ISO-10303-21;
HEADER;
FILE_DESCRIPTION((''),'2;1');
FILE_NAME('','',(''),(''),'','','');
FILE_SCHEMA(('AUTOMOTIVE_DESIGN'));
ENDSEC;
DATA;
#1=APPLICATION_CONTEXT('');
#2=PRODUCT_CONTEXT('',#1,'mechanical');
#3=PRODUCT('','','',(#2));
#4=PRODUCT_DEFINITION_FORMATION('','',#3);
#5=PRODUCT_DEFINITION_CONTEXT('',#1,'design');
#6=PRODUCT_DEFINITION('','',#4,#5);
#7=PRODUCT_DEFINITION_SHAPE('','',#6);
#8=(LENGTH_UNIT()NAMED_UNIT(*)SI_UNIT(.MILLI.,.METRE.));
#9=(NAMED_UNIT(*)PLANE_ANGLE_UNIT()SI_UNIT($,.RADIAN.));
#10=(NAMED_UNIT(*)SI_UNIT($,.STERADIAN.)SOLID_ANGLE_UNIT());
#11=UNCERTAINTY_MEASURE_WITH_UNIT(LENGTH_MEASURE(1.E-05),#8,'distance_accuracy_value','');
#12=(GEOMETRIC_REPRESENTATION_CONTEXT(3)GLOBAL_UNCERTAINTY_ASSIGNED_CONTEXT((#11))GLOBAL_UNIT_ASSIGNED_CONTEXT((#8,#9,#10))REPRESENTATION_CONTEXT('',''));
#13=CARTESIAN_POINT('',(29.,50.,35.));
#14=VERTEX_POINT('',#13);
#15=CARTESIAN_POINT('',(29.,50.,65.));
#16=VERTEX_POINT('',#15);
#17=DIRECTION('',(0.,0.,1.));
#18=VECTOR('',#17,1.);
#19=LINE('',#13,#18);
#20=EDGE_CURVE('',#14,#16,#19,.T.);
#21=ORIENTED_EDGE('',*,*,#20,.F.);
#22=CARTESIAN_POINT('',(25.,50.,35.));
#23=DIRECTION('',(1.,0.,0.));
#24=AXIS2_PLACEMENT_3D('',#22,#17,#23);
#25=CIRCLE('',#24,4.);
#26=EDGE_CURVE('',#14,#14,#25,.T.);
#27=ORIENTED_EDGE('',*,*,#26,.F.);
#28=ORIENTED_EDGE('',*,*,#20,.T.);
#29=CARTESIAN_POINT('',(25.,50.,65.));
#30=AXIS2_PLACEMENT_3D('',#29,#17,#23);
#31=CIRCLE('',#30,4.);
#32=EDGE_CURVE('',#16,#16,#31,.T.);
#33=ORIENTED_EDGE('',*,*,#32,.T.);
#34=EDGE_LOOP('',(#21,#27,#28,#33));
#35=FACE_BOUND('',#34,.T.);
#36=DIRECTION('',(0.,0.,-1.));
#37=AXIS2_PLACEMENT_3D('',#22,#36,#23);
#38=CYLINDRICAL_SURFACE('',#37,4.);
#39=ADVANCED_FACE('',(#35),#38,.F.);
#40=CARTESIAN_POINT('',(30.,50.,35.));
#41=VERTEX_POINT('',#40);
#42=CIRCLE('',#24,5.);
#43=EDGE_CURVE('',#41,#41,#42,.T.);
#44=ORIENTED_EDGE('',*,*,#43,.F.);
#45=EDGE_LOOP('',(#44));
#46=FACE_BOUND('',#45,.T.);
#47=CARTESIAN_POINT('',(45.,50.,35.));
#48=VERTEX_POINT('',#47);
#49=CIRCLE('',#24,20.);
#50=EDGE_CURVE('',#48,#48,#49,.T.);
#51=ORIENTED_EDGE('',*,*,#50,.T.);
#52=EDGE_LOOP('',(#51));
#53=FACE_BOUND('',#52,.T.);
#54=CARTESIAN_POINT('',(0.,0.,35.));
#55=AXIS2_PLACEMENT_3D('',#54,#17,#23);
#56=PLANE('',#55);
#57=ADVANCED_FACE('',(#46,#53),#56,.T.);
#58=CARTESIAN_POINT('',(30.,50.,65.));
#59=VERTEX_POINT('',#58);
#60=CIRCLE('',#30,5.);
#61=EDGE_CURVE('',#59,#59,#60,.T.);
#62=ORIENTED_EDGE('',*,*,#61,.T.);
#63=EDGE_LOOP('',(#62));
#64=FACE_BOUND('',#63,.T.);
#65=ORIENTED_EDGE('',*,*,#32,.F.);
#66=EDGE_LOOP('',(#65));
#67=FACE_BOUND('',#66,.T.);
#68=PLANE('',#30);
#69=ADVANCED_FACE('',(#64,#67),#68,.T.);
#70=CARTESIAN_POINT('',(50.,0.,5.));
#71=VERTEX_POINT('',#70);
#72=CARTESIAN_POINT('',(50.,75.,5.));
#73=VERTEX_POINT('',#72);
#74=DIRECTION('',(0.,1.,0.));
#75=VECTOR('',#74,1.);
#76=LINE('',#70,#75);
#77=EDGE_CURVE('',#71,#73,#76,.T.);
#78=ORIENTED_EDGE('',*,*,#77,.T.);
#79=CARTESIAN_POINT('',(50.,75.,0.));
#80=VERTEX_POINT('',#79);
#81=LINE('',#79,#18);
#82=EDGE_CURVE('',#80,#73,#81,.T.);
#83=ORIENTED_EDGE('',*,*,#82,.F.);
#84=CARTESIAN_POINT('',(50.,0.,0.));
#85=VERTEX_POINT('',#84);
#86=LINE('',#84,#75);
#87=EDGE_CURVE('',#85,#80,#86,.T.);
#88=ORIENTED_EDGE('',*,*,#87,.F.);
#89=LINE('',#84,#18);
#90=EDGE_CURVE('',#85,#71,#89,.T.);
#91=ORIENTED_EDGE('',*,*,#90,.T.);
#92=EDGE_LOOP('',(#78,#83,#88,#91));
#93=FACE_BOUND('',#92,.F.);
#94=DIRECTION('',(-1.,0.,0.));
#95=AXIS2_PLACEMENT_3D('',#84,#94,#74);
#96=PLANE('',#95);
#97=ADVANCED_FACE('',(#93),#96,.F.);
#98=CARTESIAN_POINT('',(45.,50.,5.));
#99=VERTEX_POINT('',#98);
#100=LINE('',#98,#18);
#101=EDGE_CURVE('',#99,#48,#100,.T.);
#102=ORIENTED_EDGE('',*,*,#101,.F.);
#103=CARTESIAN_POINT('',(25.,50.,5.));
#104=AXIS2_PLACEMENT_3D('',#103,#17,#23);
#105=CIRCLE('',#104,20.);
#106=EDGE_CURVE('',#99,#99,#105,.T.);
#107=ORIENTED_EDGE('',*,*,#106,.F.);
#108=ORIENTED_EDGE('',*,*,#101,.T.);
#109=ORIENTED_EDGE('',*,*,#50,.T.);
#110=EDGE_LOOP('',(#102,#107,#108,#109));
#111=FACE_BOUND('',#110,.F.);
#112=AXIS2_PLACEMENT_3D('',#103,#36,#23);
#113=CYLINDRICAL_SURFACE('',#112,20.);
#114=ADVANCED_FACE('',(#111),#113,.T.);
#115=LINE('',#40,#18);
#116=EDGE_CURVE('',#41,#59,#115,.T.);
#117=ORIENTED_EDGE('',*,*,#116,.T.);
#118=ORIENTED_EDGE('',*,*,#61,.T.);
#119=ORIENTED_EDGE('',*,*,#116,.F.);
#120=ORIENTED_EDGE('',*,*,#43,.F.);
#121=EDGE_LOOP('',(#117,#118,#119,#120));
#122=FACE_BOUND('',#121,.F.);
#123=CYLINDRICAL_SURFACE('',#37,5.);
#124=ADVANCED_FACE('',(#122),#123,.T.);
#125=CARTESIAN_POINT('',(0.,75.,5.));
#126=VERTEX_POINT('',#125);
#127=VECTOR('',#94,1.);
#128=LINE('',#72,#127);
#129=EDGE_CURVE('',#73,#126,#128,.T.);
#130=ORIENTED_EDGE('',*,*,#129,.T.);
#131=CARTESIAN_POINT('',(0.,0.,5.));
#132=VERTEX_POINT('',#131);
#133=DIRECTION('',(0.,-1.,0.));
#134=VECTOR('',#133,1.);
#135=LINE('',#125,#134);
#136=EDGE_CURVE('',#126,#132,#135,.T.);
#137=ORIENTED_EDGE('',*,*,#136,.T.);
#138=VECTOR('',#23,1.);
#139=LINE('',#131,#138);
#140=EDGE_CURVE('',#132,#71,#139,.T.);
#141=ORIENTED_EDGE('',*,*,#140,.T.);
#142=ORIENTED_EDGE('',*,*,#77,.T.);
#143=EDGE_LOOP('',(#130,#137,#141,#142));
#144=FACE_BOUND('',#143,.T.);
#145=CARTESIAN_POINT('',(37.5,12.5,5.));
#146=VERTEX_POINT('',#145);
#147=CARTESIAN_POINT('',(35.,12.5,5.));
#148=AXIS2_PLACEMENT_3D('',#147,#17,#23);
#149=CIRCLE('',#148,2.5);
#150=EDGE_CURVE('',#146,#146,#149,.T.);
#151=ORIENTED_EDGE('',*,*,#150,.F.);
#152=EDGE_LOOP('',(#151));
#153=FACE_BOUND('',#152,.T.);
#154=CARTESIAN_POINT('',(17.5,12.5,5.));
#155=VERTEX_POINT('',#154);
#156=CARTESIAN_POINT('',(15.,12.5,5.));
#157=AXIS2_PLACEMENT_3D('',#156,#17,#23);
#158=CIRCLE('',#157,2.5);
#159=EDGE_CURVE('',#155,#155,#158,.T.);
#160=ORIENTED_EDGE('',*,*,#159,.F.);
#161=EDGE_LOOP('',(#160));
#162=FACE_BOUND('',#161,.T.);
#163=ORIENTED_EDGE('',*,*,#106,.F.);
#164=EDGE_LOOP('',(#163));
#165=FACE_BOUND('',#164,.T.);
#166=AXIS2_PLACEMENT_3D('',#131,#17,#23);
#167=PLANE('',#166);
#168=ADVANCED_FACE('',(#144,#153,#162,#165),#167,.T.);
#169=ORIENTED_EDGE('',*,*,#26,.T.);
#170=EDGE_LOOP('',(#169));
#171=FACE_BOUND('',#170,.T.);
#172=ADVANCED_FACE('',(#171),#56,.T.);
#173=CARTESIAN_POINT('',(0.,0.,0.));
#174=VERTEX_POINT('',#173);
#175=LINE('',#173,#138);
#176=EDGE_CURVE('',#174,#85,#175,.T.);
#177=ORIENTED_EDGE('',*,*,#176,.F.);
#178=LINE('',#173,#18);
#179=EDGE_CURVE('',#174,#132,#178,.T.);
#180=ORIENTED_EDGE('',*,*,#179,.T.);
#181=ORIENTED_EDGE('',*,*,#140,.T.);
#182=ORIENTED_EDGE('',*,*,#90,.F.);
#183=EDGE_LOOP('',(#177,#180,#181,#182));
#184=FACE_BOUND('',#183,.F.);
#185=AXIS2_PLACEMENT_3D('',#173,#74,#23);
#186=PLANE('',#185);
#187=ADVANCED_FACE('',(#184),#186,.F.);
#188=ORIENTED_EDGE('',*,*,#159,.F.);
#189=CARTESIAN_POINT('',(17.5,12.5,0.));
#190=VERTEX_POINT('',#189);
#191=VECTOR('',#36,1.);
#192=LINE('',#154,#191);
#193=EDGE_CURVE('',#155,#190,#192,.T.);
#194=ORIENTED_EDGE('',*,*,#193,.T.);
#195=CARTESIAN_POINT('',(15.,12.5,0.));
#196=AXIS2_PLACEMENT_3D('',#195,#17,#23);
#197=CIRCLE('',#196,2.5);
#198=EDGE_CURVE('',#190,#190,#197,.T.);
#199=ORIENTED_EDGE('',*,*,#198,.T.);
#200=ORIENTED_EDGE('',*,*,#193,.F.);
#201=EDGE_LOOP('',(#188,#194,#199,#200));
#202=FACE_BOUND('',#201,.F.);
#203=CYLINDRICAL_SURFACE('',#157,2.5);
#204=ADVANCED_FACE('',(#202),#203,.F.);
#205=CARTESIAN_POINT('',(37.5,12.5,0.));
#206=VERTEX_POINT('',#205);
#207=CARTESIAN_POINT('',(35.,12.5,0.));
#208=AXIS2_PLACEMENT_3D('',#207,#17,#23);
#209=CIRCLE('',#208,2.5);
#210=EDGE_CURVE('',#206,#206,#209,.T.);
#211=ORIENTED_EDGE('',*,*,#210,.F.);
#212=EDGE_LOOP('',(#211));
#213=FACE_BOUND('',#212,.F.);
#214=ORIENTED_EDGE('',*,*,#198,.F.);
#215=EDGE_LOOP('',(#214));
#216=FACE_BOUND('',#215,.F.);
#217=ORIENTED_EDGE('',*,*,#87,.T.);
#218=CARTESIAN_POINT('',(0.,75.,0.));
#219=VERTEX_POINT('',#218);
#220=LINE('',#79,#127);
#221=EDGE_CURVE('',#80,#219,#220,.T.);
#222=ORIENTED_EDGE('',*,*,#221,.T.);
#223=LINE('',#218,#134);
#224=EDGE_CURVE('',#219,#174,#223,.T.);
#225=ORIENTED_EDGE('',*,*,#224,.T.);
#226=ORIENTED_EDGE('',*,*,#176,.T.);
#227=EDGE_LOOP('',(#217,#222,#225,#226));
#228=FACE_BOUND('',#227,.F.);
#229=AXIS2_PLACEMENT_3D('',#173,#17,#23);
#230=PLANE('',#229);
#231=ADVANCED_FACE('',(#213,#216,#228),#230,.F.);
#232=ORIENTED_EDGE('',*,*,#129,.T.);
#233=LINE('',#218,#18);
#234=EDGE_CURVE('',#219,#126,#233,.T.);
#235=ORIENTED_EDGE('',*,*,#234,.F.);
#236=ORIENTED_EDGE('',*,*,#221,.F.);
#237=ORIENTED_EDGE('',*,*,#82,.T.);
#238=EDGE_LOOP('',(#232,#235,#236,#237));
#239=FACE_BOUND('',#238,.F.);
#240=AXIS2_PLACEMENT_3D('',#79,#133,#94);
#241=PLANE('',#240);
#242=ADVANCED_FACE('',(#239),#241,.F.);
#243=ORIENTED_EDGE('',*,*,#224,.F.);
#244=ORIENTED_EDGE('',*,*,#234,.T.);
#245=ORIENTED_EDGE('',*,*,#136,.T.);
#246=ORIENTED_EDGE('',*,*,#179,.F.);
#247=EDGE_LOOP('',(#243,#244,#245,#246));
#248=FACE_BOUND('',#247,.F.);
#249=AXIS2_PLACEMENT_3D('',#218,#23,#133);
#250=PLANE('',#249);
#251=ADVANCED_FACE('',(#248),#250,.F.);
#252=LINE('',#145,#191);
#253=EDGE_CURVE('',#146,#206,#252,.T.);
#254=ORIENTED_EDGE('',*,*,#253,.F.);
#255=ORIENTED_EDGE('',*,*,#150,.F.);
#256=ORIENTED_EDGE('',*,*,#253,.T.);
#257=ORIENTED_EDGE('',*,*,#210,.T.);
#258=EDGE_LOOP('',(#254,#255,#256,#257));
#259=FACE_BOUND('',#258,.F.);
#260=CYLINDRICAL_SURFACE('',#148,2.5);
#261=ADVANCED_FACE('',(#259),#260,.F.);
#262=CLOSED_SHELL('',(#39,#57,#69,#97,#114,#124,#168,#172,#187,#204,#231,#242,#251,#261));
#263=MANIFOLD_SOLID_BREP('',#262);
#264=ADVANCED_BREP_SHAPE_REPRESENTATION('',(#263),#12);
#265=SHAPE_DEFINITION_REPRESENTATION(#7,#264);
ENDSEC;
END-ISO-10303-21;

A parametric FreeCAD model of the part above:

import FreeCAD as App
import Part
import Sketcher
Q = App.Units.Quantity


def add_polygon(sketch, points):
    """Adds a closed chain of lines whose ends are joined by coincident constraints."""
    first, n = sketch.GeometryCount, len(points)
    for a, b in zip(points, points[1:] + points[:1]):
        sketch.addGeometry(Part.LineSegment(App.Vector(*a, 0), App.Vector(*b, 0)), False)
    for i in range(n):
        sketch.addConstraint(Sketcher.Constraint("Coincident", first + i, 2, first + (i + 1) % n, 1))

doc = App.newDocument("Part")
params = doc.addObject("Spreadsheet::Sheet", "Params")
for row, (alias, value) in enumerate([
    ("sketch1_width", "50 mm"),
    ("sketch1_height", "75 mm"),
    ("pad1_length", "5 mm"),
    ("sketch2_diameter", "40 mm"),
    ("pad2_length", "30 mm"),
    ("sketch3_diameter", "10 mm"),
    ("sketch3_diameter2", "8 mm"),
    ("pad3_length", "30 mm"),
    ("sketch4_diameter", "5 mm"),
    ("pocket1_length", "10 mm"),
], start=1):
    params.set(f"A{row}", alias)
    params.set(f"B{row}", "=" + value)
    params.setAlias(f"B{row}", alias)

body = doc.addObject("PartDesign::Body", "Body")

sketch1 = body.newObject("Sketcher::SketchObject", "Sketch")
sketch1.AttachmentSupport = (doc.getObject("XY_Plane"), [""])
sketch1.MapMode = "FlatFace"
add_polygon(sketch1, [(0, 75), (0, 0), (50, 0), (50, 75)])
sketch1.addConstraint(Sketcher.Constraint("Vertical", 0))
sketch1.addConstraint(Sketcher.Constraint("Horizontal", 1))
sketch1.addConstraint(Sketcher.Constraint("Vertical", 2))
sketch1.addConstraint(Sketcher.Constraint("Horizontal", 3))
sketch1.addConstraint(Sketcher.Constraint("Coincident", 0, 2, -1, 1))
sketch1.addConstraint(Sketcher.Constraint("DistanceX", 1, 1, 1, 2, Q("50 mm")))
sketch1.addConstraint(Sketcher.Constraint("DistanceY", 0, 2, 0, 1, Q("75 mm")))
sketch1.setExpression("Constraints[9]", "Params.sketch1_width")
sketch1.setExpression("Constraints[10]", "Params.sketch1_height")
pad1 = body.newObject("PartDesign::Pad", "Pad")
pad1.Profile = sketch1
pad1.setExpression("Length", "Params.pad1_length")

sketch2 = body.newObject("Sketcher::SketchObject", "Sketch001")
sketch2.AttachmentSupport = (doc.getObject("XY_Plane"), [""])
sketch2.MapMode = "FlatFace"
sketch2.AttachmentOffset = App.Placement(App.Vector(0, 0, 5), App.Rotation())
sketch2.addGeometry(Part.Circle(App.Vector(25, 50, 0), App.Vector(0, 0, 1), 20), False)
sketch2.addConstraint(Sketcher.Constraint("Diameter", 0, Q("40 mm")))
sketch2.addConstraint(Sketcher.Constraint("DistanceX", -1, 1, 0, 3, Q("25 mm")))
sketch2.addConstraint(Sketcher.Constraint("DistanceY", -1, 1, 0, 3, Q("50 mm")))
sketch2.setExpression("Constraints[0]", "Params.sketch2_diameter")
pad2 = body.newObject("PartDesign::Pad", "Pad001")
pad2.Profile = sketch2
pad2.setExpression("Length", "Params.pad2_length")

sketch3 = body.newObject("Sketcher::SketchObject", "Sketch002")
sketch3.AttachmentSupport = (doc.getObject("XY_Plane"), [""])
sketch3.MapMode = "FlatFace"
sketch3.AttachmentOffset = App.Placement(App.Vector(0, 0, 35), App.Rotation())
sketch3.addGeometry(Part.Circle(App.Vector(25, 50, 0), App.Vector(0, 0, 1), 5), False)
sketch3.addGeometry(Part.Circle(App.Vector(25, 50, 0), App.Vector(0, 0, 1), 4), False)
sketch3.addConstraint(Sketcher.Constraint("Coincident", 1, 3, 0, 3))
sketch3.addConstraint(Sketcher.Constraint("Diameter", 0, Q("10 mm")))
sketch3.addConstraint(Sketcher.Constraint("Diameter", 1, Q("8 mm")))
sketch3.addConstraint(Sketcher.Constraint("DistanceX", -1, 1, 0, 3, Q("25 mm")))
sketch3.addConstraint(Sketcher.Constraint("DistanceY", -1, 1, 0, 3, Q("50 mm")))
sketch3.setExpression("Constraints[1]", "Params.sketch3_diameter")
sketch3.setExpression("Constraints[2]", "Params.sketch3_diameter2")
pad3 = body.newObject("PartDesign::Pad", "Pad002")
pad3.Profile = sketch3
pad3.setExpression("Length", "Params.pad3_length")

sketch4 = body.newObject("Sketcher::SketchObject", "Sketch003")
sketch4.AttachmentSupport = (doc.getObject("XY_Plane"), [""])
sketch4.MapMode = "FlatFace"
sketch4.AttachmentOffset = App.Placement(App.Vector(0, 0, 5), App.Rotation())
sketch4.addGeometry(Part.Circle(App.Vector(35, 12.5, 0), App.Vector(0, 0, 1), 2.5), False)
sketch4.addGeometry(Part.Circle(App.Vector(15, 12.5, 0), App.Vector(0, 0, 1), 2.5), False)
sketch4.addConstraint(Sketcher.Constraint("Equal", 0, 1))
sketch4.addConstraint(Sketcher.Constraint("Horizontal", 0, 3, 1, 3))
sketch4.addConstraint(Sketcher.Constraint("Diameter", 0, Q("5 mm")))
sketch4.addConstraint(Sketcher.Constraint("DistanceX", -1, 1, 1, 3, Q("15 mm")))
sketch4.addConstraint(Sketcher.Constraint("DistanceY", -1, 1, 0, 3, Q("12.5 mm")))
sketch4.addConstraint(Sketcher.Constraint("DistanceX", -1, 1, 0, 3, Q("35 mm")))
sketch4.setExpression("Constraints[2]", "Params.sketch4_diameter")
pocket1 = body.newObject("PartDesign::Pocket", "Pocket")
pocket1.Profile = sketch4
pocket1.setExpression("Length", "Params.pocket1_length")

doc.recompute()
